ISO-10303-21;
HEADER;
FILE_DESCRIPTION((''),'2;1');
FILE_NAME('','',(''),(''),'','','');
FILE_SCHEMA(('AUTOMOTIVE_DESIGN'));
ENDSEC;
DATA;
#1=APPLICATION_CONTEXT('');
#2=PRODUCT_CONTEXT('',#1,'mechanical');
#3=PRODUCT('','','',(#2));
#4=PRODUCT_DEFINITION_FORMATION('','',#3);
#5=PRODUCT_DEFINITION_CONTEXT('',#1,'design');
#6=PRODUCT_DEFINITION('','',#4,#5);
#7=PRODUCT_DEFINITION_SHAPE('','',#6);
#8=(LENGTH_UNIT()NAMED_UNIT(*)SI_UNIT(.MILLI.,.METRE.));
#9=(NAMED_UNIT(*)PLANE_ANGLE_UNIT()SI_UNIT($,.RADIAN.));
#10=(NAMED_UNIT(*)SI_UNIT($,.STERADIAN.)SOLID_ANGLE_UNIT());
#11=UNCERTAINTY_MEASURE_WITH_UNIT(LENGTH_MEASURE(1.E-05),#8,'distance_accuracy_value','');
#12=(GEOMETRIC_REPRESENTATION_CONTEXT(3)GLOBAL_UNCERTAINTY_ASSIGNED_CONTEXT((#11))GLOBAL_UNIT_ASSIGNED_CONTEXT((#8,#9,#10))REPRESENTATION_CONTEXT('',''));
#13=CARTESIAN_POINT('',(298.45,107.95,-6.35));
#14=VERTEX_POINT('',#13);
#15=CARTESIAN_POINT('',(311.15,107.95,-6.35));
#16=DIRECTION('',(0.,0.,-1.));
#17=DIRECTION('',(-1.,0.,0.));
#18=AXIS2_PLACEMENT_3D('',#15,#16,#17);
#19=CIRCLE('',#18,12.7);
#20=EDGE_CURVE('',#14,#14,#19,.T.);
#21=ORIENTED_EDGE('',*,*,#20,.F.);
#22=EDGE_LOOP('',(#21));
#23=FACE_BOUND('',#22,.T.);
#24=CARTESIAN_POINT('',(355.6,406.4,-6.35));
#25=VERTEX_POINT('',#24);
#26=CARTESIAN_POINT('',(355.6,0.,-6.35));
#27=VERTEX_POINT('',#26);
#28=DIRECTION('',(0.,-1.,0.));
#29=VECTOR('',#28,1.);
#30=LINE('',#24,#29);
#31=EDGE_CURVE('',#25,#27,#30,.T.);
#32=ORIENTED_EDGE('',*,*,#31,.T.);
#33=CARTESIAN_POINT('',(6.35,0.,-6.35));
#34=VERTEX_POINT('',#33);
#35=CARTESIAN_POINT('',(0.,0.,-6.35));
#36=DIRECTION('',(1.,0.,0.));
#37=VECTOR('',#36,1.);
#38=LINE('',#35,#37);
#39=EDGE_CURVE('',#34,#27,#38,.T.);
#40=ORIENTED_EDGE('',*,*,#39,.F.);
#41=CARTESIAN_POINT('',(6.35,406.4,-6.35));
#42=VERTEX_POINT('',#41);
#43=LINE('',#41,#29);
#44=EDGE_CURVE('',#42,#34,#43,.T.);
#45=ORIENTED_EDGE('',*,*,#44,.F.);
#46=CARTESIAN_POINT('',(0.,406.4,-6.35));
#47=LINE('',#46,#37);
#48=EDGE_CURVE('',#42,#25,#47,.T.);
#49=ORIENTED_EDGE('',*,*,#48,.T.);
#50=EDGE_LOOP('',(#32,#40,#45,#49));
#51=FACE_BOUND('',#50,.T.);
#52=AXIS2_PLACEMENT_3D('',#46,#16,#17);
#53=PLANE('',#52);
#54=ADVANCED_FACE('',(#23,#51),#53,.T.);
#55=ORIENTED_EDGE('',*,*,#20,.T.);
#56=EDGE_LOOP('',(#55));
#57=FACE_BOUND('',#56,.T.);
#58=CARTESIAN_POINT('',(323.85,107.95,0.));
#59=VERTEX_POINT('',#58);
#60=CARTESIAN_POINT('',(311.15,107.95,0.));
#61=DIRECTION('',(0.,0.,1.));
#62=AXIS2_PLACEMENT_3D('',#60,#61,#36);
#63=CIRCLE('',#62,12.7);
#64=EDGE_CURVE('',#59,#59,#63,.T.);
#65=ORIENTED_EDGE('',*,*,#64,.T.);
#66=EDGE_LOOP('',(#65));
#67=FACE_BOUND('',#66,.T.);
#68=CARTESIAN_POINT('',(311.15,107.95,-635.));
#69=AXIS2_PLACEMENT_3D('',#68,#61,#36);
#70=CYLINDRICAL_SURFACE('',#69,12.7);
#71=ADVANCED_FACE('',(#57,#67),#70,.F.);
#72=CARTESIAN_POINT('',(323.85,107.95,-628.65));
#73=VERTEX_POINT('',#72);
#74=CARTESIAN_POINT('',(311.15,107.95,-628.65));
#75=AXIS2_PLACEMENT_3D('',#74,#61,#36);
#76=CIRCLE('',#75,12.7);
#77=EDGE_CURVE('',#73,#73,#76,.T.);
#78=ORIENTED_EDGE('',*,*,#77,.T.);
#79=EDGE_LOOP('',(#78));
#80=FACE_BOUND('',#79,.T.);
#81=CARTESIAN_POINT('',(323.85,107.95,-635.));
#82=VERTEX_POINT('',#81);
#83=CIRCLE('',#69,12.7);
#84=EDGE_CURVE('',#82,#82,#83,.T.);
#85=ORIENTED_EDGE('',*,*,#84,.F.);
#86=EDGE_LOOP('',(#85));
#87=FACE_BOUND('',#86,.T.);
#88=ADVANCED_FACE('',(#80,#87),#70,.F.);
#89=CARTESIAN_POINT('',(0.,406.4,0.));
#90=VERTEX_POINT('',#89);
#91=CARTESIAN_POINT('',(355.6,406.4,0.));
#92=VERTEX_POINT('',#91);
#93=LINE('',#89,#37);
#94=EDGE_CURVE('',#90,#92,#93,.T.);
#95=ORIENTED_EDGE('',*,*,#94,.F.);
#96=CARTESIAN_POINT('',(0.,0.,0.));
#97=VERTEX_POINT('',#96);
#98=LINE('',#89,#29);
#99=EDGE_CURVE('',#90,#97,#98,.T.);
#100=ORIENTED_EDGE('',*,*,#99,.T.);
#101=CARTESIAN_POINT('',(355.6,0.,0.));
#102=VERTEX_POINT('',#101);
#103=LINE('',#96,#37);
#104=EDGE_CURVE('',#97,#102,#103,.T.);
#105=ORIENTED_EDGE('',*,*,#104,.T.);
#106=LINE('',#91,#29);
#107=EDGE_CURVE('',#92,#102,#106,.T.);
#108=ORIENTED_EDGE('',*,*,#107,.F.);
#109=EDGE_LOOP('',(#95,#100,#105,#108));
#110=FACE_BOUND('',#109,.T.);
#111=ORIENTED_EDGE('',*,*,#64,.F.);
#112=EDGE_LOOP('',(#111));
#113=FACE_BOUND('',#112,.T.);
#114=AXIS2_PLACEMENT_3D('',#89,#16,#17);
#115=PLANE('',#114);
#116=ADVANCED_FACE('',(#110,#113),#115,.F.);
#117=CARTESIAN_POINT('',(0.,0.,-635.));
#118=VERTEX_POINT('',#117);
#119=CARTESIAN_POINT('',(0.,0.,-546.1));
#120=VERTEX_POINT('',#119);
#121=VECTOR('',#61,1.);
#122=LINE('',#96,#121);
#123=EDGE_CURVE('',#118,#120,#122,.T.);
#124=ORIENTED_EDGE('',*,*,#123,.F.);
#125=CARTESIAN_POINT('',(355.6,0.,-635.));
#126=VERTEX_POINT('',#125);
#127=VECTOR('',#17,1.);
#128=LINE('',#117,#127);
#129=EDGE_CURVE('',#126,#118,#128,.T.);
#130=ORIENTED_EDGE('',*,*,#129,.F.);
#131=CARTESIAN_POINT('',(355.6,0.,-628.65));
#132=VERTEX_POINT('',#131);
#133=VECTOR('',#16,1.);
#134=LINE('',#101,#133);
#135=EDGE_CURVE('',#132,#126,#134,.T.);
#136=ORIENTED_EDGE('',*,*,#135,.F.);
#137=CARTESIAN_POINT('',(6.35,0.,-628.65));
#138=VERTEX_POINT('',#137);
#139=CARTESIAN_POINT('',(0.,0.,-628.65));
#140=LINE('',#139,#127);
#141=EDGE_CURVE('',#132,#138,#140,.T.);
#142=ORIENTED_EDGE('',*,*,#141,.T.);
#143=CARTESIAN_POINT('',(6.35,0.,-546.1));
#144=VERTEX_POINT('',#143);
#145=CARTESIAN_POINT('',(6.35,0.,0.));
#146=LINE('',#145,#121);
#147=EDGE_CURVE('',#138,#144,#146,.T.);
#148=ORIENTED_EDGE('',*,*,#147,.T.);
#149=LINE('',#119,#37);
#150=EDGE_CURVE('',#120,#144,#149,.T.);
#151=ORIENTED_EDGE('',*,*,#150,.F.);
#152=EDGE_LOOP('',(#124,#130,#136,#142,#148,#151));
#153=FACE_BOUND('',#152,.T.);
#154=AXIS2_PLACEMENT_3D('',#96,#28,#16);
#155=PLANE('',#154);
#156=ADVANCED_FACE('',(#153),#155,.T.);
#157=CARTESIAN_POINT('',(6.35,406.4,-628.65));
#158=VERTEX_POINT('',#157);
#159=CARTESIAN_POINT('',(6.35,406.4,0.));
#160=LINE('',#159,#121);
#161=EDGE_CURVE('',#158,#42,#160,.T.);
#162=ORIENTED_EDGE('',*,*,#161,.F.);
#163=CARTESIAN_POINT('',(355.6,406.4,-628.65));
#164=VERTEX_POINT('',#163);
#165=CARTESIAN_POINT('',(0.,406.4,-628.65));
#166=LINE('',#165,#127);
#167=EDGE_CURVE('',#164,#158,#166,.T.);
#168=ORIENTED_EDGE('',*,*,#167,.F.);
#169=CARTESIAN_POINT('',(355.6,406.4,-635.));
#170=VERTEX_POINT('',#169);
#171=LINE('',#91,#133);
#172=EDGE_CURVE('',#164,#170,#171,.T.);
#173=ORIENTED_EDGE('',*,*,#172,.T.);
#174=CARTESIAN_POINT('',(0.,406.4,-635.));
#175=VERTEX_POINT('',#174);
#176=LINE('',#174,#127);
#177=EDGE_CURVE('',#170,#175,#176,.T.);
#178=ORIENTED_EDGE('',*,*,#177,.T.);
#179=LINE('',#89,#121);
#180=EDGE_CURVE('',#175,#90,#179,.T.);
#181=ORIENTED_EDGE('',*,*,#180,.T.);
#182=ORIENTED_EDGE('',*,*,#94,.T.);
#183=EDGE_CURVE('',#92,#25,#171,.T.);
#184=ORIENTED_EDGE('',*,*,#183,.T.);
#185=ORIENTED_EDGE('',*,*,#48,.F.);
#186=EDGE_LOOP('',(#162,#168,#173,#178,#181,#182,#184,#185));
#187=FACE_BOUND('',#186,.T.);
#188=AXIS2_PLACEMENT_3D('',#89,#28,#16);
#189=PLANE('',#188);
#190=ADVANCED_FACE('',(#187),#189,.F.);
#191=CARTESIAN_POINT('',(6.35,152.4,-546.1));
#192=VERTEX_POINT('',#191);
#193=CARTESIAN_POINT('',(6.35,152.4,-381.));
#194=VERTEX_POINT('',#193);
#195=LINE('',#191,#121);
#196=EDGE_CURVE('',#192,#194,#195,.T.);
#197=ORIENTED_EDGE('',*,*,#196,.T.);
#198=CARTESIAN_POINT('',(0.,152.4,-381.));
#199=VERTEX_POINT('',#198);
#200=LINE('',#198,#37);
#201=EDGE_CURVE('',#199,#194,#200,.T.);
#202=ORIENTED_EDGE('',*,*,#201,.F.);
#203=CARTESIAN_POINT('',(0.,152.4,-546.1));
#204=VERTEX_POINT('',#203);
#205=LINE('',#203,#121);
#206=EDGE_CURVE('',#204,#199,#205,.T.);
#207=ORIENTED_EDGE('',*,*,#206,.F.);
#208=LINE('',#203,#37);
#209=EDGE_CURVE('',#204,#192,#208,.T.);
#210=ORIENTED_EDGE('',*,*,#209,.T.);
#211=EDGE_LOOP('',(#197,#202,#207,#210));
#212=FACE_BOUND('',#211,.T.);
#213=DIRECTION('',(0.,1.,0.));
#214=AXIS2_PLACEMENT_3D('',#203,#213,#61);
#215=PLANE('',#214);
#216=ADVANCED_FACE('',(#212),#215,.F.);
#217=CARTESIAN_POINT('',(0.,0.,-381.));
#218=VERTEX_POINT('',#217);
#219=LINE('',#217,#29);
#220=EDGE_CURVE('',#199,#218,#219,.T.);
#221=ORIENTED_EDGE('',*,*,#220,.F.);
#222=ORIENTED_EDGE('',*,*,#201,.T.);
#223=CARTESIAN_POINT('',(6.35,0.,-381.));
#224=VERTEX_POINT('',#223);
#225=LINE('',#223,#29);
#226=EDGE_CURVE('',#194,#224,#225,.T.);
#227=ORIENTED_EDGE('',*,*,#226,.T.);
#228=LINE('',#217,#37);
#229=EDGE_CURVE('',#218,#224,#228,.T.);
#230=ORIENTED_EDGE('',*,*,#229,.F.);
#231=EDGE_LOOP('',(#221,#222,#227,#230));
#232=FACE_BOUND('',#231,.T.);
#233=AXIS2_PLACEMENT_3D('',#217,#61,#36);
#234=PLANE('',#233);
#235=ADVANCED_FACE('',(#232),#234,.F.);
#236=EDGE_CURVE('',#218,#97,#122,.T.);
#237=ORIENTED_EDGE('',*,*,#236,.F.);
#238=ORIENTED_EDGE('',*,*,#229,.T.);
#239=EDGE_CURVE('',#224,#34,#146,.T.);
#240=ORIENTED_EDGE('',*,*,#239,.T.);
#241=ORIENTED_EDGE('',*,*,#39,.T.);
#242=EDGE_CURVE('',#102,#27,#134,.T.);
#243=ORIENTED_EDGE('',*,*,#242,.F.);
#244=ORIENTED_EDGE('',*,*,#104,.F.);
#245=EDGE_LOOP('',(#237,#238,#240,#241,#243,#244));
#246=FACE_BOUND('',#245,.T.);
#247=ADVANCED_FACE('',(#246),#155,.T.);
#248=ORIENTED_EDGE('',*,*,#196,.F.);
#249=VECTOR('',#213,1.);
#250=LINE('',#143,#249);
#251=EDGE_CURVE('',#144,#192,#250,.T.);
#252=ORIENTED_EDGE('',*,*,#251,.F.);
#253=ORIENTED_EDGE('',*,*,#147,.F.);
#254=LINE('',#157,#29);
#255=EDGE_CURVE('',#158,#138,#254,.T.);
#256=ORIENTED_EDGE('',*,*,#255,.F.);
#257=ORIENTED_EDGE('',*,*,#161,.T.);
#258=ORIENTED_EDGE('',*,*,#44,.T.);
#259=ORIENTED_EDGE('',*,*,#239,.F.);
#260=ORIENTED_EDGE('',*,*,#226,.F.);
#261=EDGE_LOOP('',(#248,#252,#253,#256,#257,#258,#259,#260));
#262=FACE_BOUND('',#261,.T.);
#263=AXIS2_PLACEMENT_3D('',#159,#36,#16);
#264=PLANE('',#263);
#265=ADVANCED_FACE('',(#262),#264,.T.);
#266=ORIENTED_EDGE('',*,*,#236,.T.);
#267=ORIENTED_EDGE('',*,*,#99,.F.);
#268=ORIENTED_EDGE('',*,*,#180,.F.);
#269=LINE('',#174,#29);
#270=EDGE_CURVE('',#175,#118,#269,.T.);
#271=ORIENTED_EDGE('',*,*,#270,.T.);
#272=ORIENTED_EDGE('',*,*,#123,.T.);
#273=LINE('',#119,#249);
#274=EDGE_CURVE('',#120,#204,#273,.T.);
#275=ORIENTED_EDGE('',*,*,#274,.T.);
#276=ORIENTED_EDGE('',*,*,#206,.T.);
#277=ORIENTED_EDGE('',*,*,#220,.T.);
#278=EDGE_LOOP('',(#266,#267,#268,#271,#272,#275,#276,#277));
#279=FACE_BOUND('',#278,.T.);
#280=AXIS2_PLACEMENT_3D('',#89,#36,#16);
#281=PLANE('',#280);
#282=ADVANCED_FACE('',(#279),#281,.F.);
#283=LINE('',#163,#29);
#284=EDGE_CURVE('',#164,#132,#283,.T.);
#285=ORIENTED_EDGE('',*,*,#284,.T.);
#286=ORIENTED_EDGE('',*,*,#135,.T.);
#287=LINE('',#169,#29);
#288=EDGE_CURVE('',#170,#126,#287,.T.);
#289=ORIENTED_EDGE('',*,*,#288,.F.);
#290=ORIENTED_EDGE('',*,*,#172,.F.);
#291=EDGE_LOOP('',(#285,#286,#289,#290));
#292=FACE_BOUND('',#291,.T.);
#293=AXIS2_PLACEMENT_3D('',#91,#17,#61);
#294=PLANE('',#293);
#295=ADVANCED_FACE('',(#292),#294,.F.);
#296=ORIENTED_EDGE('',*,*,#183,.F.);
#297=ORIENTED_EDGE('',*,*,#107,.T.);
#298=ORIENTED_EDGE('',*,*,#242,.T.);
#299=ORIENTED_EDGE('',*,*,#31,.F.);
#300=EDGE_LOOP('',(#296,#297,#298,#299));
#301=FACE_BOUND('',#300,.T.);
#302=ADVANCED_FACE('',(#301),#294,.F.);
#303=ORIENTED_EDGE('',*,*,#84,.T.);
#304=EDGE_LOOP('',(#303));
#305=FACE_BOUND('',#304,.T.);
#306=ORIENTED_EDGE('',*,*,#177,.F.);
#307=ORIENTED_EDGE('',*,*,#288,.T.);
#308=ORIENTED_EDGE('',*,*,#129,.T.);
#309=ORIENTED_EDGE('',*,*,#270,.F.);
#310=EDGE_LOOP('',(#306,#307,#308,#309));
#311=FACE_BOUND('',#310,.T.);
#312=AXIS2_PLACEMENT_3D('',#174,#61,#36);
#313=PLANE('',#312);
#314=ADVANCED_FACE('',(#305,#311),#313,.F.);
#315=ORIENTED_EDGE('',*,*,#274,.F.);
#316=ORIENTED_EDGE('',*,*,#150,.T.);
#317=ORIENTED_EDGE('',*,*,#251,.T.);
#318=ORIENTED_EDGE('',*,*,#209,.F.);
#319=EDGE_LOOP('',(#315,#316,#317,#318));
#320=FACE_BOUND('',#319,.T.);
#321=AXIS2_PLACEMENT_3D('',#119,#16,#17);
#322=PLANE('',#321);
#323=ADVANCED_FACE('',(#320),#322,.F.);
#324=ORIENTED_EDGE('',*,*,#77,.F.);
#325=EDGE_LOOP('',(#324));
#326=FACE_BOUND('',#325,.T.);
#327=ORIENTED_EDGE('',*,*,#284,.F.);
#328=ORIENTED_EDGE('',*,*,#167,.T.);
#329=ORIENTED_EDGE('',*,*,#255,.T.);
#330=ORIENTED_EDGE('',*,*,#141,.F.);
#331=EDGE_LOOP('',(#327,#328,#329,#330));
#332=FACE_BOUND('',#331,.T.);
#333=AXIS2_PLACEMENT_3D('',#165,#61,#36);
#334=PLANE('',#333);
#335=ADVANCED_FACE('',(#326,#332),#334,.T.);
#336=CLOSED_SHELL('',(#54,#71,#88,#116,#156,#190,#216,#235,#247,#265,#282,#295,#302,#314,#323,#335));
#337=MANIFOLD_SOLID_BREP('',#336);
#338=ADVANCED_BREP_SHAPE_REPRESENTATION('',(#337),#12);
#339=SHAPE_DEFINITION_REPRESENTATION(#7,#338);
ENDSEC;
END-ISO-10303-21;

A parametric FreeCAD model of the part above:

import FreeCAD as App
import Part
import Sketcher

V = App.Vector
Q = App.Units.Quantity


def faces_at(feature, points):
    """Names of the faces that lie closest to the given points."""
    faces = feature.Shape.Faces
    near = lambda p: min(range(len(faces)), key=lambda i: faces[i].distToShape(Part.Vertex(*p))[0])
    return sorted({f"Face{near(p) + 1}" for p in points})


def add_polygon(sketch, points):
    """Adds a closed chain of lines whose ends are joined by coincident constraints."""
    first, n = sketch.GeometryCount, len(points)
    for a, b in zip(points, points[1:] + points[:1]):
        sketch.addGeometry(Part.LineSegment(App.Vector(*a, 0), App.Vector(*b, 0)), False)
    for i in range(n):
        sketch.addConstraint(Sketcher.Constraint("Coincident", first + i, 2, first + (i + 1) % n, 1))

doc = App.newDocument("Part")
params = doc.addObject("Spreadsheet::Sheet", "Params")
for row, (alias, value) in enumerate([
    ("sketch1_width", "14 in"),
    ("sketch1_height", "25 in"),
    ("pad1_length", "16 in"),
    ("thickness_wall", "0.25 in"),
    ("sketch2_width", "6 in"),
    ("sketch2_height", "6.5 in"),
    ("sketch3_diameter", "1 in"),
], start=1):
    params.set(f"A{row}", alias)
    params.set(f"B{row}", "=" + value)
    params.setAlias(f"B{row}", alias)

body = doc.addObject("PartDesign::Body", "Body")

sketch1 = body.newObject("Sketcher::SketchObject", "Sketch")
sketch1.AttachmentSupport = (doc.getObject("XZ_Plane"), [""])
sketch1.MapMode = "FlatFace"
add_polygon(sketch1, [(0, -635), (0, 0), (356, 0), (356, -635)])
sketch1.addConstraint(Sketcher.Constraint("Vertical", 0))
sketch1.addConstraint(Sketcher.Constraint("Horizontal", 1))
sketch1.addConstraint(Sketcher.Constraint("Vertical", 2))
sketch1.addConstraint(Sketcher.Constraint("Horizontal", 3))
sketch1.addConstraint(Sketcher.Constraint("Coincident", 0, 2, -1, 1))
sketch1.addConstraint(Sketcher.Constraint("DistanceX", 1, 1, 1, 2, Q("14 in")))
sketch1.addConstraint(Sketcher.Constraint("DistanceY", 0, 1, 0, 2, Q("25 in")))
sketch1.setExpression("Constraints[9]", "Params.sketch1_width")
sketch1.setExpression("Constraints[10]", "Params.sketch1_height")
pad1 = body.newObject("PartDesign::Pad", "Pad")
pad1.Profile = sketch1
pad1.setExpression("Length", "Params.pad1_length")
pad1.Reversed = True
doc.recompute()

thickness = body.newObject("PartDesign::Thickness", "Thickness")
thickness.Base = (pad1, faces_at(pad1, [(177.8, 406.4, -317.5), (177.8, 0, -317.5), (355.6, 203.2, -317.5)]))
thickness.setExpression("Value", "Params.thickness_wall")
thickness.Reversed = True
thickness.Join = "Intersection"

sketch2 = body.newObject("Sketcher::SketchObject", "Sketch001")
sketch2.AttachmentSupport = (doc.getObject("YZ_Plane"), [""])
sketch2.MapMode = "FlatFace"
sketch2.AttachmentOffset = App.Placement(V(0, 0, 0.25 * 25.4), App.Rotation())
add_polygon(sketch2, [(152, -381), (0, -381), (0, -546), (152, -546)])
sketch2.addConstraint(Sketcher.Constraint("Horizontal", 0))
sketch2.addConstraint(Sketcher.Constraint("Vertical", 1))
sketch2.addConstraint(Sketcher.Constraint("Horizontal", 2))
sketch2.addConstraint(Sketcher.Constraint("Vertical", 3))
sketch2.addConstraint(Sketcher.Constraint("PointOnObject", 0, 2, -2))
sketch2.addConstraint(Sketcher.Constraint("DistanceX", 0, 2, 0, 1, Q("6 in")))
sketch2.addConstraint(Sketcher.Constraint("DistanceY", 1, 2, 1, 1, Q("6.5 in")))
sketch2.addConstraint(Sketcher.Constraint("DistanceY", 0, 2, -1, 1, Q("15 in")))
sketch2.setExpression("Constraints[9]", "Params.sketch2_width")
sketch2.setExpression("Constraints[10]", "Params.sketch2_height")
pocket1 = body.newObject("PartDesign::Pocket", "Pocket")
pocket1.Profile = sketch2
pocket1.Type = "ThroughAll"

sketch3 = body.newObject("Sketcher::SketchObject", "Sketch002")
sketch3.AttachmentSupport = (doc.getObject("XY_Plane"), [""])
sketch3.MapMode = "FlatFace"
sketch3.addGeometry(Part.Circle(V(311, 108, 0), V(0, 0, 1), 13), False)
sketch3.addConstraint(Sketcher.Constraint("Diameter", 0, Q("1 in")))
sketch3.addConstraint(Sketcher.Constraint("DistanceX", -1, 1, 0, 3, Q("12.25 in")))
sketch3.addConstraint(Sketcher.Constraint("DistanceY", -1, 1, 0, 3, Q("4.25 in")))
sketch3.setExpression("Constraints[0]", "Params.sketch3_diameter")
pocket2 = body.newObject("PartDesign::Pocket", "Pocket001")
pocket2.Profile = sketch3
pocket2.Type = "ThroughAll"

doc.recompute()
